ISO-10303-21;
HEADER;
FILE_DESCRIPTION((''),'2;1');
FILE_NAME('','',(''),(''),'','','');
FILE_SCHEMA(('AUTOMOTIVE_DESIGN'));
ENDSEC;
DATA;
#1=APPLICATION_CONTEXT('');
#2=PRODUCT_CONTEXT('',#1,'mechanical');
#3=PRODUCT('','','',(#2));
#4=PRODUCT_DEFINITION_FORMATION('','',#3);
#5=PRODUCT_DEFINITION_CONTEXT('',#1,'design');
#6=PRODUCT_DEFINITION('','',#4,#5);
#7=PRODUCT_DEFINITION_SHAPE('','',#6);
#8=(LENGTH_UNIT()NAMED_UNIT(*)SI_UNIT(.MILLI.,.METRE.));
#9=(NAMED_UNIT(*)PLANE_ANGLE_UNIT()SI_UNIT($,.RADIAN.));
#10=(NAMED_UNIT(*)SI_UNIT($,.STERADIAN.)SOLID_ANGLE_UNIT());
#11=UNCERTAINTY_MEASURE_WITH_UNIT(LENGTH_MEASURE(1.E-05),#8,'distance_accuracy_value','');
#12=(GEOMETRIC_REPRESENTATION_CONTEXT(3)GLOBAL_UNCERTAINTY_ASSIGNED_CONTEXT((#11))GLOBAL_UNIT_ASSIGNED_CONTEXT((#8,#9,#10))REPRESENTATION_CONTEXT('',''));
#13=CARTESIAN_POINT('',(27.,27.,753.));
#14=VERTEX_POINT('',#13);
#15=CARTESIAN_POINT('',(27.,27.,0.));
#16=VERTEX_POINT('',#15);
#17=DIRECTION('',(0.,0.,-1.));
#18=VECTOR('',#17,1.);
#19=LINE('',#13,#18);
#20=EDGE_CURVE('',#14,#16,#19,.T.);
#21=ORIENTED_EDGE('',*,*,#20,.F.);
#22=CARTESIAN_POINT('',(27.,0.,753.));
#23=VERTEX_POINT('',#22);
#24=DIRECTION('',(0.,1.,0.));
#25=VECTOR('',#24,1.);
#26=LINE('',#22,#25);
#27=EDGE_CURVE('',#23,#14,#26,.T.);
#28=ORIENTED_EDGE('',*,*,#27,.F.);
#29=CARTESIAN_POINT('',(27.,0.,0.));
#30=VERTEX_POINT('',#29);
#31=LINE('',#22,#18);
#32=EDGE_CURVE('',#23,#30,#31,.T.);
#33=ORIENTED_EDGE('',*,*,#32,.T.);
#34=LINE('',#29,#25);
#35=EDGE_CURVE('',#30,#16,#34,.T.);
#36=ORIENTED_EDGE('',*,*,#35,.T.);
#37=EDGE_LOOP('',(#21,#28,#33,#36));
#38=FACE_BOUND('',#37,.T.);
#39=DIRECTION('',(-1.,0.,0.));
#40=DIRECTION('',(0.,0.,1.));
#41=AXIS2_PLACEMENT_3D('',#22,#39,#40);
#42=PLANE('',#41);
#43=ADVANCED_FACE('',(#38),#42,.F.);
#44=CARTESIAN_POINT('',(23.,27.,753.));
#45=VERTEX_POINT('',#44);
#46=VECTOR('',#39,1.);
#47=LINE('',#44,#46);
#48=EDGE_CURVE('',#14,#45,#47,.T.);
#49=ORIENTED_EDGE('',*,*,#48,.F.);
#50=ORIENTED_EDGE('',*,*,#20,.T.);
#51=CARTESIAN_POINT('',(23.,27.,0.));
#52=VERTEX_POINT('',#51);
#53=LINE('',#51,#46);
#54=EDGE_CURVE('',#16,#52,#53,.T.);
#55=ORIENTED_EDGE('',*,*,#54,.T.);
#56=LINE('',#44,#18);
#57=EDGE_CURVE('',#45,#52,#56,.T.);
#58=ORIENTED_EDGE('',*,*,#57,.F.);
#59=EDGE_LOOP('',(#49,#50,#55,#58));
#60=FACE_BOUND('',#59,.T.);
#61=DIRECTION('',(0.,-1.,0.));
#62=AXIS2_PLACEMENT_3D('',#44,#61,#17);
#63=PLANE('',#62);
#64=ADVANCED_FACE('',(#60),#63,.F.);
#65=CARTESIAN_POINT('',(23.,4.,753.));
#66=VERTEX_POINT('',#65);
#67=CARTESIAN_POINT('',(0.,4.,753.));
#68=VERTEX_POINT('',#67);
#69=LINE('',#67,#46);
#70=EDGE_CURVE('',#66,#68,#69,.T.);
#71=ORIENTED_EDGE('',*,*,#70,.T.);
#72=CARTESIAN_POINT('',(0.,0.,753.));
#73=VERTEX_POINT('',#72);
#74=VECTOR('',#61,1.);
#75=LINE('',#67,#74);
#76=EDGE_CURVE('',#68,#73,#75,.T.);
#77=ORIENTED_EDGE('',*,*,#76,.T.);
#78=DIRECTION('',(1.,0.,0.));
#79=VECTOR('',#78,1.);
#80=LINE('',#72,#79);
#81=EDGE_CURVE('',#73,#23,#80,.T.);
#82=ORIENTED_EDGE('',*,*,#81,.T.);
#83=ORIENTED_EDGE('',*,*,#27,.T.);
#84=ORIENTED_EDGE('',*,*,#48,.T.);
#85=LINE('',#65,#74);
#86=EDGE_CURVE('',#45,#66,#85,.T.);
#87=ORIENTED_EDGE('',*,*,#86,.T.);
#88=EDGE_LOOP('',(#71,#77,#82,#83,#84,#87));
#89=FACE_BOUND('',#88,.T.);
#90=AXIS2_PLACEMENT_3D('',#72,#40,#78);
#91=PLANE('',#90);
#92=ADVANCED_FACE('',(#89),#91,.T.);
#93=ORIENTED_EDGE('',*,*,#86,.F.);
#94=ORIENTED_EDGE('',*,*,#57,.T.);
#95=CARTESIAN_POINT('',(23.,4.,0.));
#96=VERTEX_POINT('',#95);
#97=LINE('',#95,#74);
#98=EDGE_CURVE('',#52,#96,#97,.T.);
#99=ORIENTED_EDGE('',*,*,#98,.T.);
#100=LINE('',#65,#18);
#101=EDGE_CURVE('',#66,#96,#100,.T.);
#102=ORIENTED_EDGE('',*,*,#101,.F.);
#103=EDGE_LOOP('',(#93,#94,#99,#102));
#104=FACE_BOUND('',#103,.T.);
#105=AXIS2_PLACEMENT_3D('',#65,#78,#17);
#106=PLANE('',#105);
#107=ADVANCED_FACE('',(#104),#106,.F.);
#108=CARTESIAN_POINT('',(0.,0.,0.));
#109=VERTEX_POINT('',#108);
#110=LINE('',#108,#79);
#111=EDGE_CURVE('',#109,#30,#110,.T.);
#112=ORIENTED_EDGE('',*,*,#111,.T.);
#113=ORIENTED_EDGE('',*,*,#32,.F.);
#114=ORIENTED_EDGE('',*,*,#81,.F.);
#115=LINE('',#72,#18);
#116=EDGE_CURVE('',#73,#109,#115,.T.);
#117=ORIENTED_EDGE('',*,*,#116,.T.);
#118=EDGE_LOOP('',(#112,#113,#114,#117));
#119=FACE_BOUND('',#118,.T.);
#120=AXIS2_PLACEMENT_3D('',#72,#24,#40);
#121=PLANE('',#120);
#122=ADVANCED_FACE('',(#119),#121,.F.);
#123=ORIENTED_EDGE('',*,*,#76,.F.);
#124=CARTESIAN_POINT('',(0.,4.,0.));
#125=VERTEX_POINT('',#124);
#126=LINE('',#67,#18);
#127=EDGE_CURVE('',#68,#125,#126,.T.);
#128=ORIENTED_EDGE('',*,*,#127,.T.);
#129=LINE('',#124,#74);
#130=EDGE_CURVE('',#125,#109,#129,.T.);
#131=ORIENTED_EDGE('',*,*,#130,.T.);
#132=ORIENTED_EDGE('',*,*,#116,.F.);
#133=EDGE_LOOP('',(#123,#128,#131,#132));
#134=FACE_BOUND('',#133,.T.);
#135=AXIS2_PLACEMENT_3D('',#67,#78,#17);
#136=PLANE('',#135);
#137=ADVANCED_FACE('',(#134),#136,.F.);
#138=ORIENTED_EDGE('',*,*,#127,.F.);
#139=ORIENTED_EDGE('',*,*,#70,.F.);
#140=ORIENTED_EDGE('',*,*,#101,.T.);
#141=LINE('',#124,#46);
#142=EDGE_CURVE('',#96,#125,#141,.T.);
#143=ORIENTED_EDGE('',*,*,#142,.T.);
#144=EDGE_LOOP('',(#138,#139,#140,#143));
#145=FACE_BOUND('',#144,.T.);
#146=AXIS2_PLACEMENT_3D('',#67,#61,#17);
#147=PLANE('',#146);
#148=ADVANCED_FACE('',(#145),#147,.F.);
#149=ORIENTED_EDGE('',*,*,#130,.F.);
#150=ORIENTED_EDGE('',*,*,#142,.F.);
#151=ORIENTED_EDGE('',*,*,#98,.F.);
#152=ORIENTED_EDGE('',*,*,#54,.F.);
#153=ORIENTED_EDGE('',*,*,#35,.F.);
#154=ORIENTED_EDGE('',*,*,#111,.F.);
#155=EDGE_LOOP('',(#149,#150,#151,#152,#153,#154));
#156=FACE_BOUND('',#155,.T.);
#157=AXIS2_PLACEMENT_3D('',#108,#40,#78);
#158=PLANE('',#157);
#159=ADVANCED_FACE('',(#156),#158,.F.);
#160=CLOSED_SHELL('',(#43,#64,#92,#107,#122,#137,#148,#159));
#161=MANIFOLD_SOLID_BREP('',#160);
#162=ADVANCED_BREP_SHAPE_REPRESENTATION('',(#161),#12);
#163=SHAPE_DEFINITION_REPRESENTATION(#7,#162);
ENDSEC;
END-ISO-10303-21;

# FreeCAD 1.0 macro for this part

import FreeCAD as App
import Part
import Sketcher

doc = App.newDocument("Part")
body = doc.addObject("PartDesign::Body", "Body")

# Sketch on XY plane
sketch1 = body.newObject("Sketcher::SketchObject", "Sketch")
sketch1.AttachmentSupport = (doc.getObject("XY_Plane"), [""])
sketch1.MapMode = "FlatFace"
sketch1.addGeometry(Part.LineSegment(App.Vector(0, 0, 0), App.Vector(27, 0, 0)), False)
sketch1.addGeometry(Part.LineSegment(App.Vector(27, 0, 0), App.Vector(27, 27, 0)), False)
sketch1.addGeometry(Part.LineSegment(App.Vector(27, 27, 0), App.Vector(23, 27, 0)), False)
sketch1.addGeometry(Part.LineSegment(App.Vector(23, 27, 0), App.Vector(23, 4, 0)), False)
sketch1.addGeometry(Part.LineSegment(App.Vector(23, 4, 0), App.Vector(0, 4, 0)), False)
sketch1.addGeometry(Part.LineSegment(App.Vector(0, 4, 0), App.Vector(0, 0, 0)), False)
sketch1.addConstraint(Sketcher.Constraint("Coincident", 0, 2, 1, 1))
sketch1.addConstraint(Sketcher.Constraint("Coincident", 1, 2, 2, 1))
sketch1.addConstraint(Sketcher.Constraint("Coincident", 2, 2, 3, 1))
sketch1.addConstraint(Sketcher.Constraint("Coincident", 3, 2, 4, 1))
sketch1.addConstraint(Sketcher.Constraint("Coincident", 4, 2, 5, 1))
sketch1.addConstraint(Sketcher.Constraint("Coincident", 5, 2, 0, 1))
sketch1.addConstraint(Sketcher.Constraint("Horizontal", 0))
sketch1.addConstraint(Sketcher.Constraint("Vertical", 1))
sketch1.addConstraint(Sketcher.Constraint("Horizontal", 2))
sketch1.addConstraint(Sketcher.Constraint("Vertical", 3))
sketch1.addConstraint(Sketcher.Constraint("Horizontal", 4))
sketch1.addConstraint(Sketcher.Constraint("Vertical", 5))
sketch1.addConstraint(Sketcher.Constraint("Coincident", 5, 2, -1, 1))
sketch1.addConstraint(Sketcher.Constraint("Equal", 0, 1))
sketch1.addConstraint(Sketcher.Constraint("Equal", 4, 3))
sketch1.addConstraint(Sketcher.Constraint("DistanceX", 0, 1, 0, 2, 27.0))
sketch1.addConstraint(Sketcher.Constraint("DistanceX", 2, 2, 2, 1, 4.0))
pad1 = body.newObject("PartDesign::Pad", "Pad")
pad1.Profile = sketch1
pad1.Length = 753

doc.recompute()
